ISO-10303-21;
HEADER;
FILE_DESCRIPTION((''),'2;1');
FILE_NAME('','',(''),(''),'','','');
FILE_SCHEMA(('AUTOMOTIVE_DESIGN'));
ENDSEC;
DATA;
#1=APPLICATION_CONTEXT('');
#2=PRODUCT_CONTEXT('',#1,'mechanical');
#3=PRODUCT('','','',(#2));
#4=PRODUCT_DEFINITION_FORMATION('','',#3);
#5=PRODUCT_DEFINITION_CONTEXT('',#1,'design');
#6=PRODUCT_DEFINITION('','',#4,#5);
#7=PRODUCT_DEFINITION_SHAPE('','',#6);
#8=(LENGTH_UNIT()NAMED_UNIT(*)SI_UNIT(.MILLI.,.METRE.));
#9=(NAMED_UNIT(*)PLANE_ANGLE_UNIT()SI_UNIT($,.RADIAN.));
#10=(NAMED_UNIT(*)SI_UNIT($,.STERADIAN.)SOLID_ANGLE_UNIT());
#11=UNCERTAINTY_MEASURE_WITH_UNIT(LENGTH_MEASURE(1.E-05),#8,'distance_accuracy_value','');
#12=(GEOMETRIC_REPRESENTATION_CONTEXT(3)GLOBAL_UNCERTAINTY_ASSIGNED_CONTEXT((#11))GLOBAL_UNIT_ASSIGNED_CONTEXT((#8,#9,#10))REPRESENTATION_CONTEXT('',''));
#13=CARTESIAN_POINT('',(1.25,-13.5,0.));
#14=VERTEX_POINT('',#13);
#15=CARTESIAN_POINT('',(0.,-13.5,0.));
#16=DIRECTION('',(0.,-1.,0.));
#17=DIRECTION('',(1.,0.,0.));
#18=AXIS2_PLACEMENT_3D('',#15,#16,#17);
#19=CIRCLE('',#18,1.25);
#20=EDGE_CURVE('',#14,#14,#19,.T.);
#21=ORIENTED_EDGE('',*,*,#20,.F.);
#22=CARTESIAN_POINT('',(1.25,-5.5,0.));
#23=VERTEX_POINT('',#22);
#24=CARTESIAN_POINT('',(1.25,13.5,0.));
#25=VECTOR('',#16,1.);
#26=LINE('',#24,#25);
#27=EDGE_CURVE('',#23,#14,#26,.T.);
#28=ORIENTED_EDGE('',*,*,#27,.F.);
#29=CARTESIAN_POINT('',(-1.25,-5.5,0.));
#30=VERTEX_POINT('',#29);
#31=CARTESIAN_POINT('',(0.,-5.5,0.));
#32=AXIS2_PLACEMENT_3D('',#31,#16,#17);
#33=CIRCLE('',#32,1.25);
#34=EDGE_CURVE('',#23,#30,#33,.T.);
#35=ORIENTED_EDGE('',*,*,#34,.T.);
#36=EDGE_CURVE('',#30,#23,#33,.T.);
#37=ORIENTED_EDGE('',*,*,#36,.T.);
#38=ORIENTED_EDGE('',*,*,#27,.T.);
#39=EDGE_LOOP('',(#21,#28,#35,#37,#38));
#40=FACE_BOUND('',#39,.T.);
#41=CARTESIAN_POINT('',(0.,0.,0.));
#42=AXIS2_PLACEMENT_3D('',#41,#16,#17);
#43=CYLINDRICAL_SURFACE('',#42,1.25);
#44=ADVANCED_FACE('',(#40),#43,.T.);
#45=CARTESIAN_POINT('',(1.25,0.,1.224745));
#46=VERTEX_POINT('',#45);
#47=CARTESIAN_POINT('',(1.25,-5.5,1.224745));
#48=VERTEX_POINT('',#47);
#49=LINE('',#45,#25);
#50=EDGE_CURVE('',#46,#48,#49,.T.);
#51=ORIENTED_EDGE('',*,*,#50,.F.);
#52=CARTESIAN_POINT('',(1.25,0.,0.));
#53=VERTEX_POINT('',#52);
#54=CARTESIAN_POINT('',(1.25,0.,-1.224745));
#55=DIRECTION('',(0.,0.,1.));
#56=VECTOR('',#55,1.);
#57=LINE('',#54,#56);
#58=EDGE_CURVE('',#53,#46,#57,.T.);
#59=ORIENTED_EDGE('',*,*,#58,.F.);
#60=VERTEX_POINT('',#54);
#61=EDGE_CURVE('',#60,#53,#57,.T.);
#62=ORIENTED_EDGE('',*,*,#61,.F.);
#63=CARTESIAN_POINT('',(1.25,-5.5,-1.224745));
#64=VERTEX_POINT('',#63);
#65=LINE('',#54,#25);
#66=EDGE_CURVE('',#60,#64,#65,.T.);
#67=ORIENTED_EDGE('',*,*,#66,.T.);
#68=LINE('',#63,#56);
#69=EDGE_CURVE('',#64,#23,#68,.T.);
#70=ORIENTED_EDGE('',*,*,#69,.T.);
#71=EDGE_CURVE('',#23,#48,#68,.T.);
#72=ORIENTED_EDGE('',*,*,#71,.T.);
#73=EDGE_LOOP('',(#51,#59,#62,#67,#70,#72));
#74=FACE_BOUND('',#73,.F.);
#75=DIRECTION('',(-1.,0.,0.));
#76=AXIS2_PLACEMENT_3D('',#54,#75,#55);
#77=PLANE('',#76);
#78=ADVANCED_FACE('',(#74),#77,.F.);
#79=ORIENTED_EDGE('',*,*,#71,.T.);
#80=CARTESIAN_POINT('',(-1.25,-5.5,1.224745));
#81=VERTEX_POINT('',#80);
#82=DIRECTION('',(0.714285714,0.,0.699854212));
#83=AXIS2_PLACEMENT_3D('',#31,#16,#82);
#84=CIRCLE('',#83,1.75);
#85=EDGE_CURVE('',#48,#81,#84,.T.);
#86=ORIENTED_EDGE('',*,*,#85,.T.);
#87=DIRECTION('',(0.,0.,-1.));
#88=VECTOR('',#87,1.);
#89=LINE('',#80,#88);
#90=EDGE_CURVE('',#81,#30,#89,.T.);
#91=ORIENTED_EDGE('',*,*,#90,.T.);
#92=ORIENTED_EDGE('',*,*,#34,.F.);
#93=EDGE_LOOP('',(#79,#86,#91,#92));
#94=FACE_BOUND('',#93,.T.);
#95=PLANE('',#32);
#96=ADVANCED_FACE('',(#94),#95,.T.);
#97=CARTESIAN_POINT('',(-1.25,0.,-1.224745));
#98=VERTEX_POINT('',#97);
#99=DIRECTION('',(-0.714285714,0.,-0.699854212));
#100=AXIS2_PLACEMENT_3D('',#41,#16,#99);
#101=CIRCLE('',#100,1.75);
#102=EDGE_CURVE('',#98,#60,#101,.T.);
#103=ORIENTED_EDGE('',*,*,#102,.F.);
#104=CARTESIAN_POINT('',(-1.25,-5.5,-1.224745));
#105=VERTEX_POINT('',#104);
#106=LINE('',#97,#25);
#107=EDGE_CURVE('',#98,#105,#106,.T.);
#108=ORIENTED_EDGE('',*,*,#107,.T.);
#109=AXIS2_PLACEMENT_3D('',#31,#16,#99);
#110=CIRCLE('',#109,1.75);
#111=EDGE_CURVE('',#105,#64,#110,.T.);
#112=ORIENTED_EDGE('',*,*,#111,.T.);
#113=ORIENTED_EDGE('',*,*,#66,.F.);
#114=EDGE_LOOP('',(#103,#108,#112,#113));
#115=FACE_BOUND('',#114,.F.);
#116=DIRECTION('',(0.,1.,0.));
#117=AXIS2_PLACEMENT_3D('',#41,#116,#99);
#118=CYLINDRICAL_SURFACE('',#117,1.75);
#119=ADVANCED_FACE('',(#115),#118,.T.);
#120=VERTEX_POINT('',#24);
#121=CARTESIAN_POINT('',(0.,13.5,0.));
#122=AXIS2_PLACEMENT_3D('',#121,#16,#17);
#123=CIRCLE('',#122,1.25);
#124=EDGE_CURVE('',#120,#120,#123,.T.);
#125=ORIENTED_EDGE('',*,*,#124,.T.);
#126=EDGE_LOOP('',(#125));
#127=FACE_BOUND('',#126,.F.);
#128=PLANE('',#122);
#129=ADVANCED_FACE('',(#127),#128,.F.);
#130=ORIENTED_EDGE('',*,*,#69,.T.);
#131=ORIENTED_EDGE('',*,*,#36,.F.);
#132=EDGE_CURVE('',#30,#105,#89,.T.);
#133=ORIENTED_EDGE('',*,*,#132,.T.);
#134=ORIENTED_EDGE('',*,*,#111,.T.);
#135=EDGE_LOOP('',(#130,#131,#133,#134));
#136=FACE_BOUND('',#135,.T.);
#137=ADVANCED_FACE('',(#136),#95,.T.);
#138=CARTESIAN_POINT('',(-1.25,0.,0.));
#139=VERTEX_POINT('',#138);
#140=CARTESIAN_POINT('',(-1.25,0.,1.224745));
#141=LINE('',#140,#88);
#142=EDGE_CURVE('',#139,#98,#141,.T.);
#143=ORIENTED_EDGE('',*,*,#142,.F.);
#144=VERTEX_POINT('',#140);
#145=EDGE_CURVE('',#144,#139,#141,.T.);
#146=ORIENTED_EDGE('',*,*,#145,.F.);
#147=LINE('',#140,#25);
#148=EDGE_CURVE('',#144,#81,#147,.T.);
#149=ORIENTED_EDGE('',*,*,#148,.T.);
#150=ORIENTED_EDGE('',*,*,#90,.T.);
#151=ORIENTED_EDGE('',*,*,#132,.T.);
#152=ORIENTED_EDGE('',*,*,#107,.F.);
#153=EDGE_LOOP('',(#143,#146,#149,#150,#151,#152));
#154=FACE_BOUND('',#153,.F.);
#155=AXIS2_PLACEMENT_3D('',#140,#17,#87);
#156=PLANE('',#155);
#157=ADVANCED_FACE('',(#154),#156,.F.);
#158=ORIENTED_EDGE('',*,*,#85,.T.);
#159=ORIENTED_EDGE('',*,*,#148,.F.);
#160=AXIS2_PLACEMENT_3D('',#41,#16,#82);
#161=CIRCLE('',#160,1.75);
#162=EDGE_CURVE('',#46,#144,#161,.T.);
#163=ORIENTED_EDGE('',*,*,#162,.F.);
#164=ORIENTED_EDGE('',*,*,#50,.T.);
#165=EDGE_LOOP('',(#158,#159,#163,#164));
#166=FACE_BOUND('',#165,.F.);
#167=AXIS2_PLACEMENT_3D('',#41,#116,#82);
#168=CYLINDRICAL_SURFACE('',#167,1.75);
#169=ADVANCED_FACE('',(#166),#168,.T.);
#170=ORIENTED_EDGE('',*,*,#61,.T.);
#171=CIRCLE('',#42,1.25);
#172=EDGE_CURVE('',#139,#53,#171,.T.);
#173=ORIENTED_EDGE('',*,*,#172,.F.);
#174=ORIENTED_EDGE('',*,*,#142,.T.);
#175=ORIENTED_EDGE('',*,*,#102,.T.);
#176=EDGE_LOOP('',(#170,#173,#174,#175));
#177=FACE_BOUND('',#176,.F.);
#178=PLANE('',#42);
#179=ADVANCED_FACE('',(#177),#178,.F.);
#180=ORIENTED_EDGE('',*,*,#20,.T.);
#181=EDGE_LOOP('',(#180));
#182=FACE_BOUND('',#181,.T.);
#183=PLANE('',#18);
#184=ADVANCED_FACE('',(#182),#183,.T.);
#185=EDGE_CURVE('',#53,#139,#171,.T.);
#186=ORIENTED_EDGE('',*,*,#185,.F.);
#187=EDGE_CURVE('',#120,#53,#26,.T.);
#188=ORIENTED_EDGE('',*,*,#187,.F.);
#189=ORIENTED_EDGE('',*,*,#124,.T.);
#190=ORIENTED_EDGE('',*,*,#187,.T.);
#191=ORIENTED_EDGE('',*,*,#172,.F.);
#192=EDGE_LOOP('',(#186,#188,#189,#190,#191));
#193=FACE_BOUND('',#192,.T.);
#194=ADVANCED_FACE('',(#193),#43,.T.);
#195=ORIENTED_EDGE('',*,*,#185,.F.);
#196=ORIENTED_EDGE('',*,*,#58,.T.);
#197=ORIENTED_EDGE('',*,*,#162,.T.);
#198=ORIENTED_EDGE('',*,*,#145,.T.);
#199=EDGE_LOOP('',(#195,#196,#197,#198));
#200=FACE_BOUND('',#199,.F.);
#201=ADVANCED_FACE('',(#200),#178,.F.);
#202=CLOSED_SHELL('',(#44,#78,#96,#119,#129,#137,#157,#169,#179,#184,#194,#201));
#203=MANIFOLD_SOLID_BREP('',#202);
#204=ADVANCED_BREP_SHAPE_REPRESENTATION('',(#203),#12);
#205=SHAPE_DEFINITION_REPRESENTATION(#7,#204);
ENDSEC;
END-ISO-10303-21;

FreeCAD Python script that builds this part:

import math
import FreeCAD as App
import Part
import Sketcher

V = App.Vector

doc = App.newDocument("Part")
params = doc.addObject("Spreadsheet::Sheet", "Params")
for row, (alias, value) in enumerate([
    ("sketch1_radius", "1.75 mm"),
    ("pad1_length", "5.5 mm"),
    ("sketch2_diameter", "2.5 mm"),
    ("pad2_length", "27 mm"),
], start=1):
    params.set(f"A{row}", alias)
    params.set(f"B{row}", "=" + value)
    params.setAlias(f"B{row}", alias)

body = doc.addObject("PartDesign::Body", "Body")

sketch1 = doc.addObject("Sketcher::SketchObject", "Sketch")
body.addObject(sketch1)
sketch1.AttachmentSupport = (doc.XZ_Plane, [""])
sketch1.MapMode = "FlatFace"
sketch1.addGeometry([
    Part.LineSegment(V(-1.25, 1.224745, 0), V(-1.25, -1.224745, 0)),
    Part.ArcOfCircle(Part.Circle(V(0, 0, 0), V(0, 0, 1), 1.75), math.radians(-135.584691), math.radians(-44.415309)),
    Part.LineSegment(V(1.25, -1.224745, 0), V(1.25, 1.224745, 0)),
    Part.ArcOfCircle(Part.Circle(V(0, 0, 0), V(0, 0, 1), 1.75), math.radians(44.415309), math.radians(135.584691)),
], False)
sketch1.addConstraint([
    Sketcher.Constraint("Coincident", 0, 2, 1, 1),
    Sketcher.Constraint("Coincident", 1, 2, 2, 1),
    Sketcher.Constraint("Coincident", 2, 2, 3, 1),
    Sketcher.Constraint("Coincident", 3, 2, 0, 1),
    Sketcher.Constraint("Vertical", 0),
    Sketcher.Constraint("Vertical", 2),
    Sketcher.Constraint("Coincident", 1, 3, -1, 1),
    Sketcher.Constraint("Coincident", 3, 3, -1, 1),
    Sketcher.Constraint("Equal", 1, 3),
    Sketcher.Constraint("Horizontal", 0, 2, 1, 2),
    Sketcher.Constraint("Radius", 1, 1.75),
    Sketcher.Constraint("DistanceX", 0, 2, 1, 2, 2.5),
])
sketch1.setExpression("Constraints[10]", "Params.sketch1_radius")
pad1 = doc.addObject("PartDesign::Pad", "Pad")
body.addObject(pad1)
pad1.Profile = sketch1
pad1.setExpression("Length", "Params.pad1_length")

sketch2 = doc.addObject("Sketcher::SketchObject", "Sketch001")
body.addObject(sketch2)
sketch2.AttachmentSupport = (doc.XZ_Plane, [""])
sketch2.MapMode = "FlatFace"
sketch2.addGeometry(Part.Circle(V(0, 0, 0), V(0, 0, 1), 1.25), False)
sketch2.addConstraint([
    Sketcher.Constraint("Coincident", 0, 3, -1, 1),
    Sketcher.Constraint("Diameter", 0, 2.5),
])
sketch2.setExpression("Constraints[1]", "Params.sketch2_diameter")
pad2 = doc.addObject("PartDesign::Pad", "Pad001")
body.addObject(pad2)
pad2.Profile = sketch2
pad2.setExpression("Length", "Params.pad2_length")
pad2.Midplane = True

doc.recompute()
